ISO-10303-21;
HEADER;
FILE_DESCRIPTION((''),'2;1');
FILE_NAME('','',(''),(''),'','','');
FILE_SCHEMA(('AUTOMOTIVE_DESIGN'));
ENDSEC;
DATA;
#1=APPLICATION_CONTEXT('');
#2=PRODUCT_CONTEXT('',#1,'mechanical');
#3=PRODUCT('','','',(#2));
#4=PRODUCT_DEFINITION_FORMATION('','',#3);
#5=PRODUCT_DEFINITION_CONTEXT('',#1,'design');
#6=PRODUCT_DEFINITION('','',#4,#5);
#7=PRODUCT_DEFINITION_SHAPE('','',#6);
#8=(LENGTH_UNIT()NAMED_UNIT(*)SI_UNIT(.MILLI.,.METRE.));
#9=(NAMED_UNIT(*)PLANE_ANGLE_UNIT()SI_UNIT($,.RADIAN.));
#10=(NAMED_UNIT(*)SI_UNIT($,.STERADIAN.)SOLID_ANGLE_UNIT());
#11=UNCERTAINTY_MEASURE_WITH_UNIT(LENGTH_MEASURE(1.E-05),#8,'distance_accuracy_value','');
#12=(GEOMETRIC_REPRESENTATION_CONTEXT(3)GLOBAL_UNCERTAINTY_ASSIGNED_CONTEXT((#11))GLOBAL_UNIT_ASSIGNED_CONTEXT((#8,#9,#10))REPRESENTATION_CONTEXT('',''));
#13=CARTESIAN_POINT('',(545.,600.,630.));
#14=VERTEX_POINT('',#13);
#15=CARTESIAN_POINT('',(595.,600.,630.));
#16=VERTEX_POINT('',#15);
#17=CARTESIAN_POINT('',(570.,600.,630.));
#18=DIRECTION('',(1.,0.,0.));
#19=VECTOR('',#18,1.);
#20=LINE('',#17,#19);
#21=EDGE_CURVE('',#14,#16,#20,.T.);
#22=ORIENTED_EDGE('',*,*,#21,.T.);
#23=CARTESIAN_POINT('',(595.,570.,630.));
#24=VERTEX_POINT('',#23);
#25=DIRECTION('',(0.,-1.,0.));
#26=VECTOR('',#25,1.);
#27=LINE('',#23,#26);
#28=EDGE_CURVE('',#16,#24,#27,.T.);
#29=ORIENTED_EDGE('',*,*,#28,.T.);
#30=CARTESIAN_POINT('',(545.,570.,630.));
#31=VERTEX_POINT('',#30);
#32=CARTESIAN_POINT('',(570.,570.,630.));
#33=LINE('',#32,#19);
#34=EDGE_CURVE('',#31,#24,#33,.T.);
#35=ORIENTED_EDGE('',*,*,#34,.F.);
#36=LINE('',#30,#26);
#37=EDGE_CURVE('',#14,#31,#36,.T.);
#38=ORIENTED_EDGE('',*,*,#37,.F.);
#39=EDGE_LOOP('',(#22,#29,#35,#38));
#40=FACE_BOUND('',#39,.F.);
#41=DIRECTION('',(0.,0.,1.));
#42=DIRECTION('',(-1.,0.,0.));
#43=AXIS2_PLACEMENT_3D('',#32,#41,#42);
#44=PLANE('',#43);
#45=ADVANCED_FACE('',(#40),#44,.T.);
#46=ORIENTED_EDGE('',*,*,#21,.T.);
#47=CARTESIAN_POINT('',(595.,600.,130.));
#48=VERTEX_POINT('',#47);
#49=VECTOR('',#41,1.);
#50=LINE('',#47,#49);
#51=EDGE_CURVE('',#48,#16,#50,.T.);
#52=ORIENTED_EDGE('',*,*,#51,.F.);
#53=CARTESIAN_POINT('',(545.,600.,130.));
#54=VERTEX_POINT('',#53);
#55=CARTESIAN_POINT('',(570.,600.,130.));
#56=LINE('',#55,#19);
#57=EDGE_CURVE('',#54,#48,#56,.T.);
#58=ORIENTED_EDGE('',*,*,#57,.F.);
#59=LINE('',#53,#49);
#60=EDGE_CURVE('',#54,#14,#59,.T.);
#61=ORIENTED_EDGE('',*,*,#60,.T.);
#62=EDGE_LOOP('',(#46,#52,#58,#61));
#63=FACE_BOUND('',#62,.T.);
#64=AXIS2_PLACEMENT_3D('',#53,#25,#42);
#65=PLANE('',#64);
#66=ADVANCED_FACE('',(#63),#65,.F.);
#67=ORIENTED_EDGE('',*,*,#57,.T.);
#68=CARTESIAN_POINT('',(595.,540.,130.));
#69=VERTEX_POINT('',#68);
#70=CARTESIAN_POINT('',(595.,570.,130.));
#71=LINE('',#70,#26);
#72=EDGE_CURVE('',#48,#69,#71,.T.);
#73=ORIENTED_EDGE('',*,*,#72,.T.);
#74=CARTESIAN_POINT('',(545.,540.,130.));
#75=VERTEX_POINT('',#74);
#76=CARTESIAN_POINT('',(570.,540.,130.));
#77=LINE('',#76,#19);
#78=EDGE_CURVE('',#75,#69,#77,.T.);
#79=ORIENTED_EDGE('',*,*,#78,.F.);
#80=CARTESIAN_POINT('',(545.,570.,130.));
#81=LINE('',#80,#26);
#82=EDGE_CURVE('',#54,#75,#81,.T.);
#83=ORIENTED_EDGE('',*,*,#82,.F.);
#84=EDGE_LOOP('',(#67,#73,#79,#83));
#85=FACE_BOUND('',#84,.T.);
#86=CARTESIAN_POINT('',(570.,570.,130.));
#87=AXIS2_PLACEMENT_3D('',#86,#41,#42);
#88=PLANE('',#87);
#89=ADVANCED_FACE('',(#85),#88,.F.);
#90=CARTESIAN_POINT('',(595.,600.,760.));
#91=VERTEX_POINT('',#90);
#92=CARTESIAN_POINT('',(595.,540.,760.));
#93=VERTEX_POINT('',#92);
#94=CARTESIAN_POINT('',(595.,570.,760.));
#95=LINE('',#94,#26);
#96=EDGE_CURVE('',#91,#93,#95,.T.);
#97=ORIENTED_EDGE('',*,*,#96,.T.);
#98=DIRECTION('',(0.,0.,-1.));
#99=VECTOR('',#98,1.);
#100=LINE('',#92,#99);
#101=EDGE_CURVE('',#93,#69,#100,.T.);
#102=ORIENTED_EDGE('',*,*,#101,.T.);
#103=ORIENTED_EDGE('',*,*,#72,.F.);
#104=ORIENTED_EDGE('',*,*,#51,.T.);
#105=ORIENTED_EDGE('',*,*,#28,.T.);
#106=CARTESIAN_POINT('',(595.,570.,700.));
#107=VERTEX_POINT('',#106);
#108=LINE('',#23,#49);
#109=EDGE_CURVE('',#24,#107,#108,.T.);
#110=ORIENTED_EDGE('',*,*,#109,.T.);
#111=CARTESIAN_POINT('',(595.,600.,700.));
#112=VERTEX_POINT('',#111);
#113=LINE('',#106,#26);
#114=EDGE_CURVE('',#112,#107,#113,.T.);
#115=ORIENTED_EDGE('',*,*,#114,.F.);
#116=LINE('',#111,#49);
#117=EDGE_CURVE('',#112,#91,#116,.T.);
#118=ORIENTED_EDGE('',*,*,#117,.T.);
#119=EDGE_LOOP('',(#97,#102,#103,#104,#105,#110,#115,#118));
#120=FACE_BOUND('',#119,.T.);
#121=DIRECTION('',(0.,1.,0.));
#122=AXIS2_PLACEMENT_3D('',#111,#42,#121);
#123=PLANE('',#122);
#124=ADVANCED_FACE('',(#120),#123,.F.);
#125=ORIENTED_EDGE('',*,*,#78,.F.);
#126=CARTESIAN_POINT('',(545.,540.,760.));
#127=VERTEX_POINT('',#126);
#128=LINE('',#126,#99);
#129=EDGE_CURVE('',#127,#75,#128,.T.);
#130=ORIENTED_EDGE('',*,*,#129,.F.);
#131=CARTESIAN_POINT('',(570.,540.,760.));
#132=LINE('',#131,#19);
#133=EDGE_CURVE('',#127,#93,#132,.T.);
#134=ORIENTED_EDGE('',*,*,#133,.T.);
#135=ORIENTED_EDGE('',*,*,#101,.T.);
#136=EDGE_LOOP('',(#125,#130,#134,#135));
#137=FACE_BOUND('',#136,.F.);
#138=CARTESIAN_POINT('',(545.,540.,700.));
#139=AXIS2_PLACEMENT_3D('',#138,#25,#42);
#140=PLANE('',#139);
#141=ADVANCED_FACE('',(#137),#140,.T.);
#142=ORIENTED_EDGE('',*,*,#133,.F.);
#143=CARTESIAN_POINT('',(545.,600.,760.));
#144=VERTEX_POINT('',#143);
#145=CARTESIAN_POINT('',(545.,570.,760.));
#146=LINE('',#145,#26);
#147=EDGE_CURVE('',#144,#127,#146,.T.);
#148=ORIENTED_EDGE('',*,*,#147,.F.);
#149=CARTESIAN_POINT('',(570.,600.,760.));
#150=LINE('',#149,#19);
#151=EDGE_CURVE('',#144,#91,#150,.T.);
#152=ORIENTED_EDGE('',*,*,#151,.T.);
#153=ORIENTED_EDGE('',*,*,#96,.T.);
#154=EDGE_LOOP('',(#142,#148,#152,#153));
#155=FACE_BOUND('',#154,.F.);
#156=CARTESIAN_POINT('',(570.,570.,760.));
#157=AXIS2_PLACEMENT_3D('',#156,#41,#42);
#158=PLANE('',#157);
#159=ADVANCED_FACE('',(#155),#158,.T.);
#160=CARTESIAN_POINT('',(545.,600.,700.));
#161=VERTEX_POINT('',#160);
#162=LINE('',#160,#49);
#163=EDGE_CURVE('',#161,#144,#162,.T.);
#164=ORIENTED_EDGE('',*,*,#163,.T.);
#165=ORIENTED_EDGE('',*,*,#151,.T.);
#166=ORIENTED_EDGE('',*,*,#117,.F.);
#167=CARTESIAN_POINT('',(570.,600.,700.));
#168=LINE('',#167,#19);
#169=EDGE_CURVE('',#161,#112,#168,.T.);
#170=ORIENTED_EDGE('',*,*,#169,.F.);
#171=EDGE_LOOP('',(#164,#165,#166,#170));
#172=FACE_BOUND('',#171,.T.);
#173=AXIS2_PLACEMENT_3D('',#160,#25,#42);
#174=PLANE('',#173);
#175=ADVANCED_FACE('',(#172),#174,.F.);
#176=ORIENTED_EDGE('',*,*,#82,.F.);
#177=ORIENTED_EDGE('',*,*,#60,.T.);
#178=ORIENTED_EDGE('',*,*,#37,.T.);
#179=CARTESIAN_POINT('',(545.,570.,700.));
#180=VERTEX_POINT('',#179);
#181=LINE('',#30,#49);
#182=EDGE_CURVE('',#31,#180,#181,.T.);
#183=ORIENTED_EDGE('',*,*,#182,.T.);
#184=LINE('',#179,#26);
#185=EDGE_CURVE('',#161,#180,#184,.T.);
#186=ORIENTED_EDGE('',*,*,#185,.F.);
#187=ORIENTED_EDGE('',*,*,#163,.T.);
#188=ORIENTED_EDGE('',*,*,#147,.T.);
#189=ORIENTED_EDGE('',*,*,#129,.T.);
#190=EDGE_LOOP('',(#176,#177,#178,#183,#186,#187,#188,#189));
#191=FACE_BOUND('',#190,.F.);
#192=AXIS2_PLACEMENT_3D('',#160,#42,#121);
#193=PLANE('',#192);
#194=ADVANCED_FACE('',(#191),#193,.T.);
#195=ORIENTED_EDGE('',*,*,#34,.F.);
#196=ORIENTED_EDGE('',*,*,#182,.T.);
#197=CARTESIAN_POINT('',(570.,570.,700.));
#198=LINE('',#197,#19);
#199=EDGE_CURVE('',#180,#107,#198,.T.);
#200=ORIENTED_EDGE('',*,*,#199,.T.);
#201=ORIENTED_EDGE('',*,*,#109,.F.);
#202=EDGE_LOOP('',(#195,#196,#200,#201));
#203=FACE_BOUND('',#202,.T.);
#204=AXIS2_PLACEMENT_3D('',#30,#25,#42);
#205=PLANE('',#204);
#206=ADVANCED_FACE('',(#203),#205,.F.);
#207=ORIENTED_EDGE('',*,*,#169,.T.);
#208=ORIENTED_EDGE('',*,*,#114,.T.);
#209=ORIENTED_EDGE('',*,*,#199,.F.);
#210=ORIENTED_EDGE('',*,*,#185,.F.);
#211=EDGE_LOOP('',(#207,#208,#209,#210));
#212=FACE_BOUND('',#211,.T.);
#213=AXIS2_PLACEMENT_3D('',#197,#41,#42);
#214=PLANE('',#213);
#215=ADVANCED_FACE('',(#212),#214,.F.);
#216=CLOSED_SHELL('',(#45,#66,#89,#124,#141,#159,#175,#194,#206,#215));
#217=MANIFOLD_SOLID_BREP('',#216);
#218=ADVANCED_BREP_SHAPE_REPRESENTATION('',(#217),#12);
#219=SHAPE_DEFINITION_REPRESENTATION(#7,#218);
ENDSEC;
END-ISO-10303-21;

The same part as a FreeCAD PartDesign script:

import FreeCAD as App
import Part
import Sketcher

doc = App.newDocument("Part")
body = doc.addObject("PartDesign::Body", "Body")

# Sketch on XY plane
sketch1 = body.newObject("Sketcher::SketchObject", "Sketch")
sketch1.AttachmentSupport = (doc.getObject("XY_Plane"), [""])
sketch1.MapMode = "FlatFace"
sketch1.AttachmentOffset = App.Placement(App.Vector(0, 0, 630), App.Rotation())
sketch1.addGeometry([
    Part.LineSegment(App.Vector(545, 60, 0), App.Vector(545, 30, 0)),
    Part.LineSegment(App.Vector(545, 30, 0), App.Vector(595, 30, 0)),
    Part.LineSegment(App.Vector(595, 30, 0), App.Vector(595, 60, 0)),
    Part.LineSegment(App.Vector(595, 60, 0), App.Vector(545, 60, 0)),
], False)
sketch1.addConstraint([
    Sketcher.Constraint("Coincident", 0, 2, 1, 1),
    Sketcher.Constraint("Coincident", 1, 2, 2, 1),
    Sketcher.Constraint("Coincident", 2, 2, 3, 1),
    Sketcher.Constraint("Coincident", 3, 2, 0, 1),
    Sketcher.Constraint("Vertical", 0),
    Sketcher.Constraint("Horizontal", 1),
    Sketcher.Constraint("Vertical", 2),
    Sketcher.Constraint("Horizontal", 3),
    Sketcher.Constraint("DistanceX", 1, 1, 1, 2, 50.0),
    Sketcher.Constraint("DistanceY", 0, 2, 0, 1, 30.0),
    Sketcher.Constraint("DistanceX", -1, 1, 0, 2, 545.0),
    Sketcher.Constraint("DistanceY", -1, 1, 0, 2, 30.0),
])
pad1 = body.newObject("PartDesign::Pad", "Pad")
pad1.Profile = sketch1
pad1.Length = 70
body2 = doc.addObject("PartDesign::Body", "Body001")

# Sketch on XY plane
sketch2 = body2.newObject("Sketcher::SketchObject", "Sketch001")
sketch2.AttachmentSupport = (doc.getObject("XY_Plane001"), [""])
sketch2.MapMode = "FlatFace"
sketch2.AttachmentOffset = App.Placement(App.Vector(0, 0, 700), App.Rotation())
sketch2.addGeometry([
    Part.LineSegment(App.Vector(545, 60, 0), App.Vector(545, 0, 0)),
    Part.LineSegment(App.Vector(545, 0, 0), App.Vector(595, 0, 0)),
    Part.LineSegment(App.Vector(595, 0, 0), App.Vector(595, 60, 0)),
    Part.LineSegment(App.Vector(595, 60, 0), App.Vector(545, 60, 0)),
], False)
sketch2.addConstraint([
    Sketcher.Constraint("Coincident", 0, 2, 1, 1),
    Sketcher.Constraint("Coincident", 1, 2, 2, 1),
    Sketcher.Constraint("Coincident", 2, 2, 3, 1),
    Sketcher.Constraint("Coincident", 3, 2, 0, 1),
    Sketcher.Constraint("Vertical", 0),
    Sketcher.Constraint("Horizontal", 1),
    Sketcher.Constraint("Vertical", 2),
    Sketcher.Constraint("Horizontal", 3),
    Sketcher.Constraint("PointOnObject", 0, 2, -1),
    Sketcher.Constraint("DistanceX", 1, 1, 1, 2, 50.0),
    Sketcher.Constraint("DistanceY", 0, 2, 0, 1, 60.0),
    Sketcher.Constraint("DistanceX", -1, 1, 0, 2, 545.0),
])
pad2 = body2.newObject("PartDesign::Pad", "Pad001")
pad2.Profile = sketch2
pad2.Length = 60
body3 = doc.addObject("PartDesign::Body", "Body002")

# Sketch on XY plane
sketch3 = body3.newObject("Sketcher::SketchObject", "Sketch002")
sketch3.AttachmentSupport = (doc.getObject("XY_Plane002"), [""])
sketch3.MapMode = "FlatFace"
sketch3.AttachmentOffset = App.Placement(App.Vector(0, 0, 130), App.Rotation())
sketch3.addGeometry([
    Part.LineSegment(App.Vector(545, 60, 0), App.Vector(545, 0, 0)),
    Part.LineSegment(App.Vector(545, 0, 0), App.Vector(595, 0, 0)),
    Part.LineSegment(App.Vector(595, 0, 0), App.Vector(595, 60, 0)),
    Part.LineSegment(App.Vector(595, 60, 0), App.Vector(545, 60, 0)),
], False)
sketch3.addConstraint([
    Sketcher.Constraint("Coincident", 0, 2, 1, 1),
    Sketcher.Constraint("Coincident", 1, 2, 2, 1),
    Sketcher.Constraint("Coincident", 2, 2, 3, 1),
    Sketcher.Constraint("Coincident", 3, 2, 0, 1),
    Sketcher.Constraint("Vertical", 0),
    Sketcher.Constraint("Horizontal", 1),
    Sketcher.Constraint("Vertical", 2),
    Sketcher.Constraint("Horizontal", 3),
    Sketcher.Constraint("PointOnObject", 0, 2, -1),
    Sketcher.Constraint("DistanceX", 1, 1, 1, 2, 50.0),
    Sketcher.Constraint("DistanceY", 0, 2, 0, 1, 60.0),
    Sketcher.Constraint("DistanceX", -1, 1, 0, 2, 545.0),
])
pad3 = body3.newObject("PartDesign::Pad", "Pad002")
pad3.Profile = sketch3
pad3.Length = 500
doc.recompute()

boolean = body3.newObject("PartDesign::Boolean", "Boolean")
boolean.Type = "Fuse"
boolean.addObjects([body])
doc.recompute()

boolean2 = body3.newObject("PartDesign::Boolean", "Boolean001")
boolean2.Type = "Fuse"
boolean2.addObjects([body2])
body4 = doc.addObject("PartDesign::Body", "Body003")
doc.recompute()

mirroring = doc.addObject("Part::Mirroring", "Mirroring")
mirroring.Source = body3
mirroring.Base = App.Vector(1140, 300, 120)
mirroring.Normal = App.Vector(0, 1, 0)
body4.BaseFeature = mirroring
doc.recompute()
body3.Visibility = False
mirroring.Visibility = False

doc.recompute()
